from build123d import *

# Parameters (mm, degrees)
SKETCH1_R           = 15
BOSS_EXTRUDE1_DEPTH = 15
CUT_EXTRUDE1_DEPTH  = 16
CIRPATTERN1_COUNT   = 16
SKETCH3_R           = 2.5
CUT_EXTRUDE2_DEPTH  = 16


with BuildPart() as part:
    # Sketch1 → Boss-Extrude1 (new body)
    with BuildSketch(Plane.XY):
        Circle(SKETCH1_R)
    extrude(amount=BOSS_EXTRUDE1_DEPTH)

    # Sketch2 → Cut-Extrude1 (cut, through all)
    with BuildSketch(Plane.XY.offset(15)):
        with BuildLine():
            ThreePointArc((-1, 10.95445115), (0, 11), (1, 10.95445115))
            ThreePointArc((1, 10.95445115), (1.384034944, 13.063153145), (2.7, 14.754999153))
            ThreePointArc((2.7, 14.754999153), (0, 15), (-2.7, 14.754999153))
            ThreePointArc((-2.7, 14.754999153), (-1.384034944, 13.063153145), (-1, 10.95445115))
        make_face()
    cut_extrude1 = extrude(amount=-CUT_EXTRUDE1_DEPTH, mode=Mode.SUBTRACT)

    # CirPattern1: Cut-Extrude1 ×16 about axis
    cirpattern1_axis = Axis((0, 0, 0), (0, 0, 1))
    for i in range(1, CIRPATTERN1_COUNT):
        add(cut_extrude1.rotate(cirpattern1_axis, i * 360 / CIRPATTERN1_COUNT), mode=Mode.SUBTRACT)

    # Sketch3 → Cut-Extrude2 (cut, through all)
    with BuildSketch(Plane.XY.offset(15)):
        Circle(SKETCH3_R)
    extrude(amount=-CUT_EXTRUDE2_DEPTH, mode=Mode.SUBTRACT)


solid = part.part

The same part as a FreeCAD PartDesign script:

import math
import FreeCAD as App
import Part
import Sketcher

V = App.Vector

doc = App.newDocument("Part")
body = doc.addObject("PartDesign::Body", "Body")

# Sketch on XY plane
sketch1 = body.newObject("Sketcher::SketchObject", "Sketch")
sketch1.AttachmentSupport = (doc.getObject("XY_Plane"), [""])
sketch1.MapMode = "FlatFace"
sketch1.addGeometry(Part.Circle(V(0, 0, 0), V(0, 0, 1), 15), False)
sketch1.addConstraint(Sketcher.Constraint("Coincident", 0, 3, -1, 1))
sketch1.addConstraint(Sketcher.Constraint("Diameter", 0, 30.0))
pad1 = body.newObject("PartDesign::Pad", "Pad")
pad1.Profile = sketch1
pad1.Length = 15

# Sketch on XY plane
sketch2 = body.newObject("Sketcher::SketchObject", "Sketch001")
sketch2.AttachmentSupport = (doc.getObject("XY_Plane"), [""])
sketch2.MapMode = "FlatFace"
sketch2.AttachmentOffset = App.Placement(V(0, 0, 15), App.Rotation())
sketch2.addGeometry(Part.ArcOfCircle(Part.Circle(V(0, 0, 0), V(0, 0, 1), 11), math.radians(84.784091), math.radians(95.215909)), False)
sketch2.addGeometry(Part.ArcOfCircle(Part.Circle(V(5.491816, 11.225727, 0), V(0, 0, 1), 4.5), math.radians(128.345608), math.radians(183.456083)), False)
sketch2.addGeometry(Part.ArcOfCircle(Part.Circle(V(0, 0, 0), V(0, 0, 1), 15), math.radians(79.63024), math.radians(100.36976)), False)
sketch2.addGeometry(Part.ArcOfCircle(Part.Circle(V(-5.491816, 11.225727, 0), V(0, 0, 1), 4.5), math.radians(-3.456083), math.radians(51.654392)), False)
sketch2.addConstraint(Sketcher.Constraint("Coincident", 0, 1, 1, 2))
sketch2.addConstraint(Sketcher.Constraint("Coincident", 1, 1, 2, 1))
sketch2.addConstraint(Sketcher.Constraint("Coincident", 2, 2, 3, 2))
sketch2.addConstraint(Sketcher.Constraint("Coincident", 3, 1, 0, 2))
sketch2.addConstraint(Sketcher.Constraint("Coincident", 0, 3, -1, 1))
sketch2.addConstraint(Sketcher.Constraint("Coincident", 2, 3, -1, 1))
sketch2.addConstraint(Sketcher.Constraint("Equal", 1, 3))
sketch2.addConstraint(Sketcher.Constraint("Symmetric", 1, 3, 3, 3, -2))
sketch2.addConstraint(Sketcher.Constraint("Radius", 0, 11.0))
sketch2.addConstraint(Sketcher.Constraint("Radius", 2, 15.0))
sketch2.addConstraint(Sketcher.Constraint("Radius", 1, 4.5))
sketch2.addConstraint(Sketcher.Constraint("DistanceX", -1, 1, 0, 1, 1.0))
sketch2.addConstraint(Sketcher.Constraint("DistanceX", -1, 1, 1, 1, 2.7))
pocket1 = body.newObject("PartDesign::Pocket", "Pocket")
pocket1.Profile = sketch2
pocket1.Type = "ThroughAll"
doc.recompute()

polarpattern = body.newObject("PartDesign::PolarPattern", "PolarPattern")
polarpattern.Originals = [pocket1]
polarpattern.Axis = (doc.getObject("Z_Axis"), [""])
polarpattern.Angle = 360
polarpattern.Occurrences = 16
body.Tip = polarpattern

# Sketch on XY plane
sketch3 = body.newObject("Sketcher::SketchObject", "Sketch002")
sketch3.AttachmentSupport = (doc.getObject("XY_Plane"), [""])
sketch3.MapMode = "FlatFace"
sketch3.AttachmentOffset = App.Placement(V(0, 0, 15), App.Rotation())
sketch3.addGeometry(Part.Circle(V(0, 0, 0), V(0, 0, 1), 2.5), False)
sketch3.addConstraint(Sketcher.Constraint("Coincident", 0, 3, -1, 1))
sketch3.addConstraint(Sketcher.Constraint("Diameter", 0, 5.0))
pocket2 = body.newObject("PartDesign::Pocket", "Pocket001")
pocket2.Profile = sketch3
pocket2.Type = "ThroughAll"

doc.recompute()
